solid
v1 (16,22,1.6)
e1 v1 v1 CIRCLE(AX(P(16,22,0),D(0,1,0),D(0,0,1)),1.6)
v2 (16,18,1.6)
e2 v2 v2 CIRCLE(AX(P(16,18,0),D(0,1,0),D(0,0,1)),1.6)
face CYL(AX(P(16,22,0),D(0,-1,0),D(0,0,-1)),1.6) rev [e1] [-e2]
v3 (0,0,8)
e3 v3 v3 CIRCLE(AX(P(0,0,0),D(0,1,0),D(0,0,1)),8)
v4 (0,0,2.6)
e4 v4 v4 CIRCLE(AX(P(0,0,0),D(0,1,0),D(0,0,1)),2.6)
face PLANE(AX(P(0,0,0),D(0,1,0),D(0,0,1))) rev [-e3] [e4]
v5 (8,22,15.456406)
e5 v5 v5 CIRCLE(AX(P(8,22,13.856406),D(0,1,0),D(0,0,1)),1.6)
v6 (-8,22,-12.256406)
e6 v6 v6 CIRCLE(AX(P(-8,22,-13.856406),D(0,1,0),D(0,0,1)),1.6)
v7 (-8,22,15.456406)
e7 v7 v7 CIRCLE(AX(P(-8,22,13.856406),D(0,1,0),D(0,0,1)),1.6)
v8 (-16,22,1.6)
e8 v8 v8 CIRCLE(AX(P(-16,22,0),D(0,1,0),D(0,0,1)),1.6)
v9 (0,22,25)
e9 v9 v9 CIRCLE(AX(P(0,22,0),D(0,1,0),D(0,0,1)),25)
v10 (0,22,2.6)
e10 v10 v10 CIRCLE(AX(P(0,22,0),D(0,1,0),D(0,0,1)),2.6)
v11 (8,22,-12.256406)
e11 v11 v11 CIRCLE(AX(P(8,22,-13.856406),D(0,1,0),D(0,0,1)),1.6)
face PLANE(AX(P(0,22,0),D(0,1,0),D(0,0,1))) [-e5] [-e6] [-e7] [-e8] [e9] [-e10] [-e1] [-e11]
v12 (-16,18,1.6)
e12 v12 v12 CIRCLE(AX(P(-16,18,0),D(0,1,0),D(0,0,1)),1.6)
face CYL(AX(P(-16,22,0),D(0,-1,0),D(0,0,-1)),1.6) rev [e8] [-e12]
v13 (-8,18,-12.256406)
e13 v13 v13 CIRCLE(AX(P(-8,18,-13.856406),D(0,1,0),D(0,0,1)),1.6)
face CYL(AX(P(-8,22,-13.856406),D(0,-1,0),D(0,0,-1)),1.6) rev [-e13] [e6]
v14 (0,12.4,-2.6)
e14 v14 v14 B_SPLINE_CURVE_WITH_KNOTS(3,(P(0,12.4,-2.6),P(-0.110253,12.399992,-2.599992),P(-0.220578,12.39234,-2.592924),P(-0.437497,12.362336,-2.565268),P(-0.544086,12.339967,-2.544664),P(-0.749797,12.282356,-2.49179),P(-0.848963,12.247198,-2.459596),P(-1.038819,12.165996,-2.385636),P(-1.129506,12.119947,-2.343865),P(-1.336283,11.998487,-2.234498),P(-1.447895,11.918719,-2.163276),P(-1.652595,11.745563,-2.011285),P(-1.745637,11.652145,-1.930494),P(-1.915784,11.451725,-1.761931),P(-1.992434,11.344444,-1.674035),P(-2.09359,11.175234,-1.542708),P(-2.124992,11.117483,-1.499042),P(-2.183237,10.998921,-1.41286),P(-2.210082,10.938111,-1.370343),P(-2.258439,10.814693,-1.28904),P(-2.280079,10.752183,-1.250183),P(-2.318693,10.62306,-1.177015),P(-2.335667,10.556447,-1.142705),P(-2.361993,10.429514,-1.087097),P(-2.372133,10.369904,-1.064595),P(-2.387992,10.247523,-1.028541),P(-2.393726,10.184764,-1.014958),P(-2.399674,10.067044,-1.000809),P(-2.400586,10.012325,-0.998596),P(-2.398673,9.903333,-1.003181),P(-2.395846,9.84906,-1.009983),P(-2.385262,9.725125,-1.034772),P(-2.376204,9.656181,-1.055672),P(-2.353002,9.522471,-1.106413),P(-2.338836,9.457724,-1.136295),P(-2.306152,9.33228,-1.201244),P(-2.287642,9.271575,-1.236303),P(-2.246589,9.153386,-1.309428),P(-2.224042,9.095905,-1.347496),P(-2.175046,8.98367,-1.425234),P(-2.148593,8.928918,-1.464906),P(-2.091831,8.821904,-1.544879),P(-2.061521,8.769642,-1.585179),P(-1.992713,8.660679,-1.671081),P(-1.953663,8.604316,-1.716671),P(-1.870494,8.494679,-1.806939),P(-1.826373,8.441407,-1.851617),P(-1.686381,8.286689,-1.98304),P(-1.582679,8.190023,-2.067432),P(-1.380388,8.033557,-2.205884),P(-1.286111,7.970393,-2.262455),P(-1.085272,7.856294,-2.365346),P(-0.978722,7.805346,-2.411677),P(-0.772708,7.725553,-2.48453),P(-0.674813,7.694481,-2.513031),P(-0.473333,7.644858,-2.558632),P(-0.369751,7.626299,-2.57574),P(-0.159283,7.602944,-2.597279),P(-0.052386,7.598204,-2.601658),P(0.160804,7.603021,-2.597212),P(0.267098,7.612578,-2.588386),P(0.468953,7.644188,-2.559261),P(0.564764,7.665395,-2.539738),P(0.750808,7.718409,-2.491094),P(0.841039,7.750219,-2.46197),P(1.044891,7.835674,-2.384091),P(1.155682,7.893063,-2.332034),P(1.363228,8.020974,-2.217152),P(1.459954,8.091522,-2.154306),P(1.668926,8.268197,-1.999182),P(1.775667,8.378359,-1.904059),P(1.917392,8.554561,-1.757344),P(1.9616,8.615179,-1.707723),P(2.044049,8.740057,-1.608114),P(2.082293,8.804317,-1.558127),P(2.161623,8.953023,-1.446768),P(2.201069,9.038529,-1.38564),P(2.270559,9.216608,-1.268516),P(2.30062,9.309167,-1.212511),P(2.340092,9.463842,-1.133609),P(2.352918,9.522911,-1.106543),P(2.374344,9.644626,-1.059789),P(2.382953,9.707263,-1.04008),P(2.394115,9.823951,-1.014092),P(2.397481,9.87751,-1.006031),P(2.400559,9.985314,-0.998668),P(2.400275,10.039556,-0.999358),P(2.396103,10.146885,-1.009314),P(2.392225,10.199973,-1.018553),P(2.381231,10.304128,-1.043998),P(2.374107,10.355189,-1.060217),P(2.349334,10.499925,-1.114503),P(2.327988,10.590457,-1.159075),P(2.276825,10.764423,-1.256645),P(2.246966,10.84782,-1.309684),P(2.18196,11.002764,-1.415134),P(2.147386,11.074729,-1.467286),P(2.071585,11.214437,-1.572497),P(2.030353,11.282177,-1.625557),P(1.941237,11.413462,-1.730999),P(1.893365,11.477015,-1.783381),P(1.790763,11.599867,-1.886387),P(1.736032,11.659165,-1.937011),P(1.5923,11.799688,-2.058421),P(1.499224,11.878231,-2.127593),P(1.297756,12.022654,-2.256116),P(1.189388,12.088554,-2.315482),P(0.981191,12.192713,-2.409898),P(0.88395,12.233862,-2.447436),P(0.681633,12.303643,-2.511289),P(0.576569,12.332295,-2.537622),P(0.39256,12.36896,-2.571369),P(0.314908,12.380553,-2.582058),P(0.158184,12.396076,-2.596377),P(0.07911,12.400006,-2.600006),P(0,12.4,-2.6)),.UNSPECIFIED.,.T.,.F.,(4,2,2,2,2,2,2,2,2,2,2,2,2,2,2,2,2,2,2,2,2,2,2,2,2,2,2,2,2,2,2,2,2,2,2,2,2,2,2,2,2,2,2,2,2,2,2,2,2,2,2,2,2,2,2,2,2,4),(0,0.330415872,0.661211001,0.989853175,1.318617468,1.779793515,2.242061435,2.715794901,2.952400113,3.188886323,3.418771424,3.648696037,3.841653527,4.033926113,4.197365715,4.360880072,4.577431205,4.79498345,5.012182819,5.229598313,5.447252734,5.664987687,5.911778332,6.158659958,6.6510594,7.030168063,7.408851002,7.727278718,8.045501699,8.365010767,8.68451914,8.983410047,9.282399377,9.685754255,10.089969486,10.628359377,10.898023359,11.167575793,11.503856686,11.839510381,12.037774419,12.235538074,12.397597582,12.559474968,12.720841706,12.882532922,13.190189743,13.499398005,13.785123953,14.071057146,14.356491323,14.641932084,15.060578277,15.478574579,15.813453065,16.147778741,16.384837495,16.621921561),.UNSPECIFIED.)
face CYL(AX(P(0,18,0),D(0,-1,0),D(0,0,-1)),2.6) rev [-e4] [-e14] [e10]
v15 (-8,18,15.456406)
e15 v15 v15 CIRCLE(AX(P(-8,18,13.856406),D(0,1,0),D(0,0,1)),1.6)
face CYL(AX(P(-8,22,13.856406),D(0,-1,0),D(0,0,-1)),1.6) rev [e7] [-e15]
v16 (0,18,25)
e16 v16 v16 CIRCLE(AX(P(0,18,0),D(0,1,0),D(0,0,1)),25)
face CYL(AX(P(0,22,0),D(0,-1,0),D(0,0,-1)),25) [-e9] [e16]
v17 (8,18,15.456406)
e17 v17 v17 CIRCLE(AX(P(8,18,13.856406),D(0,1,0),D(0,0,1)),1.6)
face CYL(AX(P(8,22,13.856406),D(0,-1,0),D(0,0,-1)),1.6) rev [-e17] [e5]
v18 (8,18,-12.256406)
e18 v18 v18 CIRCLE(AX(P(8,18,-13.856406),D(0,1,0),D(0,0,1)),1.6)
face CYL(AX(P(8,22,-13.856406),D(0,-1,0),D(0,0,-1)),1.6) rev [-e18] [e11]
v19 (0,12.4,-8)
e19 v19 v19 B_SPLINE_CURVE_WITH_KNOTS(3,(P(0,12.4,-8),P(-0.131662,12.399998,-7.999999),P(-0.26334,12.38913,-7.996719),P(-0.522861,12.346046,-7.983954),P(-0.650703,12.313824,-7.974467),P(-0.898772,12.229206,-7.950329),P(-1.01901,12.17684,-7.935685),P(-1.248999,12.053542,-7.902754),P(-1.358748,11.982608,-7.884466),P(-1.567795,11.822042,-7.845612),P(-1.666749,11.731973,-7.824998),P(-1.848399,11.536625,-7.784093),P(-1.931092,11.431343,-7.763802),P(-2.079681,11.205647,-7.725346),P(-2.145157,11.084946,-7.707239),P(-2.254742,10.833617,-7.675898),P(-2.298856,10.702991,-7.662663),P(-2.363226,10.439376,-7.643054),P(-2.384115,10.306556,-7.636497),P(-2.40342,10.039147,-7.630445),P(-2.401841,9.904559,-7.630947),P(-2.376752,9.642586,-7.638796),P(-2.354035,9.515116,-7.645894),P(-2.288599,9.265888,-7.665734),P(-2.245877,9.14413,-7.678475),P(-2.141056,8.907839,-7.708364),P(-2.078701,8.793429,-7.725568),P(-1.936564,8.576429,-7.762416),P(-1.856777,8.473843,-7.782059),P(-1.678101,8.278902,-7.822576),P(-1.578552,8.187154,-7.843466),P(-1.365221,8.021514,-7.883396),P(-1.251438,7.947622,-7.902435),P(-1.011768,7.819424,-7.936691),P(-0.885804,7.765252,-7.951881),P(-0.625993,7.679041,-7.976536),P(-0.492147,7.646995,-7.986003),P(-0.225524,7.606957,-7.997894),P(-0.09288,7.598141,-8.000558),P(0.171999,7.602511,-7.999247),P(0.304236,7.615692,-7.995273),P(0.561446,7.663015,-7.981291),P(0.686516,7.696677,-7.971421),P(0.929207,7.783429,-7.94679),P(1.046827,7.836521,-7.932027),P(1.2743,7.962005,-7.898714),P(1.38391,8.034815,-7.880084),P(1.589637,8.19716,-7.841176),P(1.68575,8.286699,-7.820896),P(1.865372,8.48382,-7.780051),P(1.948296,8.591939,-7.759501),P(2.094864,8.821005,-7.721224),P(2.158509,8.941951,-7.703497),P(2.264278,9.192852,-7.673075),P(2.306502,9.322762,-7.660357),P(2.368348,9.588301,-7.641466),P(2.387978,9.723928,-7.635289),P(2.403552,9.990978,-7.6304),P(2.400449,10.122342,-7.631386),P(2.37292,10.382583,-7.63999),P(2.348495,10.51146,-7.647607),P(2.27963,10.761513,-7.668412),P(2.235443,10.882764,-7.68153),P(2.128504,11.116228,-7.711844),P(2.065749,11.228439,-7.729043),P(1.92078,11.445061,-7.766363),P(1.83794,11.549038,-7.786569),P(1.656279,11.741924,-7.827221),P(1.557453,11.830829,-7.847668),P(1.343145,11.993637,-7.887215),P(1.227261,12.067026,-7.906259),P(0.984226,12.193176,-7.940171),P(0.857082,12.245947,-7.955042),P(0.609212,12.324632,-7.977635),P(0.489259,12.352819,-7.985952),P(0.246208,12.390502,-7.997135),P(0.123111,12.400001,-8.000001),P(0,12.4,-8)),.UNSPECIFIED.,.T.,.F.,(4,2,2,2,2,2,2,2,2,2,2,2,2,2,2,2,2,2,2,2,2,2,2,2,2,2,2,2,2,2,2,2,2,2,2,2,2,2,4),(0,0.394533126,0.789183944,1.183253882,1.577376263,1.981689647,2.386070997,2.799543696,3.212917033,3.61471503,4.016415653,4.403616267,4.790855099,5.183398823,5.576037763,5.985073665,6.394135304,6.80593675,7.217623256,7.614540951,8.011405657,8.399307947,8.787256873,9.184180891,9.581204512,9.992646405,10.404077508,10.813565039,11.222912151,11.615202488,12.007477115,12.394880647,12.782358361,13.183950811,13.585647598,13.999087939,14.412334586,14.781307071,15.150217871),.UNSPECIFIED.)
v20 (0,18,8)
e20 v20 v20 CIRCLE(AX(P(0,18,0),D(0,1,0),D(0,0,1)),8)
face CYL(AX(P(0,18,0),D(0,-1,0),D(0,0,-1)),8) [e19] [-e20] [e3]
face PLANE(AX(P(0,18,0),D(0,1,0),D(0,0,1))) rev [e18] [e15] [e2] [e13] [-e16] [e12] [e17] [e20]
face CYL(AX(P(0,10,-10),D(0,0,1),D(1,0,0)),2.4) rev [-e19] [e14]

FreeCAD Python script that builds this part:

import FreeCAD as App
import Part
import Sketcher
from FreeCAD import Vector
Q = App.Units.Quantity

doc = App.newDocument("Part")
body = doc.addObject("PartDesign::Body", "Body")

sketch1 = doc.addObject("Sketcher::SketchObject", "Sketch")
body.addObject(sketch1)
sketch1.AttachmentSupport = (doc.XZ_Plane, [""])
sketch1.MapMode = "FlatFace"
sketch1.addGeometry([
    Part.Circle(Vector(0, 0, 0), Vector(0, 0, 1), 8),
    Part.Circle(Vector(0, 0, 0), Vector(0, 0, 1), 2.6),
], False)
sketch1.addConstraint([
    Sketcher.Constraint("Coincident", 0, 3, -1, 1),
    Sketcher.Constraint("Coincident", 1, 3, -1, 1),
    Sketcher.Constraint("Diameter", 0, Q("16 mm")),
    Sketcher.Constraint("Diameter", 1, Q("5.2 mm")),
])
pad1 = doc.addObject("PartDesign::Pad", "Pad")
body.addObject(pad1)
pad1.Profile = sketch1
pad1.Length = 18
pad1.Reversed = True

sketch2 = doc.addObject("Sketcher::SketchObject", "Sketch001")
body.addObject(sketch2)
sketch2.AttachmentSupport = (doc.XZ_Plane, [""])
sketch2.MapMode = "FlatFace"
sketch2.AttachmentOffset = App.Placement(Vector(0, 0, -18), App.Rotation())
sketch2.addGeometry([
    Part.Circle(Vector(0, 0, 0), Vector(0, 0, 1), 25),
    Part.Circle(Vector(-8, -13.9, 0), Vector(0, 0, 1), 1.6),
    Part.Circle(Vector(-16, 0, 0), Vector(0, 0, 1), 1.6),
    Part.Circle(Vector(-8, 13.9, 0), Vector(0, 0, 1), 1.6),
    Part.Circle(Vector(8, -13.9, 0), Vector(0, 0, 1), 1.6),
    Part.Circle(Vector(16, 0, 0), Vector(0, 0, 1), 1.6),
    Part.Circle(Vector(8, 13.9, 0), Vector(0, 0, 1), 1.6),
], False)
sketch2.addConstraint([
    Sketcher.Constraint("Coincident", 0, 3, -1, 1),
    Sketcher.Constraint("Equal", 1, 2),
    Sketcher.Constraint("Equal", 2, 3),
    Sketcher.Constraint("Equal", 3, 4),
    Sketcher.Constraint("Equal", 4, 5),
    Sketcher.Constraint("Equal", 5, 6),
    Sketcher.Constraint("Symmetric", 3, 3, 4, 3, -1, 1),
    Sketcher.Constraint("Symmetric", 2, 3, 5, 3, -1, 1),
    Sketcher.Constraint("Symmetric", 1, 3, 6, 3, -1, 1),
    Sketcher.Constraint("Symmetric", 1, 3, 4, 3, -2),
    Sketcher.Constraint("PointOnObject", 2, 3, -1),
    Sketcher.Constraint("Diameter", 0, Q("50 mm")),
    Sketcher.Constraint("Diameter", 1, Q("3.2 mm")),
    Sketcher.Constraint("DistanceX", 1, 3, -1, 1, Q("8 mm")),
    Sketcher.Constraint("DistanceX", 2, 3, -1, 1, Q("16 mm")),
    Sketcher.Constraint("DistanceY", 1, 3, -1, 1, Q("13.856406 mm")),
])
pad2 = doc.addObject("PartDesign::Pad", "Pad001")
body.addObject(pad2)
pad2.Profile = sketch2
pad2.Length = 4
pad2.Reversed = True

sketch3 = doc.addObject("Sketcher::SketchObject", "Sketch002")
body.addObject(sketch3)
sketch3.AttachmentSupport = (doc.XY_Plane, [""])
sketch3.MapMode = "FlatFace"
sketch3.addGeometry(Part.Circle(Vector(0, 10, 0), Vector(0, 0, 1), 2.4), False)
sketch3.addConstraint([
    Sketcher.Constraint("PointOnObject", 0, 3, -2),
    Sketcher.Constraint("Diameter", 0, Q("4.8 mm")),
    Sketcher.Constraint("DistanceY", -1, 1, 0, 3, Q("10 mm")),
])
pocket1 = doc.addObject("PartDesign::Pocket", "Pocket")
body.addObject(pocket1)
pocket1.Profile = sketch3
pocket1.Length = 10

sketch4 = doc.addObject("Sketcher::SketchObject", "Sketch003")
body.addObject(sketch4)
sketch4.AttachmentSupport = (doc.XZ_Plane, [""])
sketch4.MapMode = "FlatFace"
sketch4.AttachmentOffset = App.Placement(Vector(0, 0, -18), App.Rotation())
sketch4.addGeometry(Part.Circle(Vector(0, 0, 0), Vector(0, 0, 1), 2.6), False)
sketch4.addConstraint([
    Sketcher.Constraint("Coincident", 0, 3, -1, 1),
    Sketcher.Constraint("Diameter", 0, Q("5.2 mm")),
])
pocket2 = doc.addObject("PartDesign::Pocket", "Pocket001")
body.addObject(pocket2)
pocket2.Profile = sketch4
pocket2.Length = 10

doc.recompute()
